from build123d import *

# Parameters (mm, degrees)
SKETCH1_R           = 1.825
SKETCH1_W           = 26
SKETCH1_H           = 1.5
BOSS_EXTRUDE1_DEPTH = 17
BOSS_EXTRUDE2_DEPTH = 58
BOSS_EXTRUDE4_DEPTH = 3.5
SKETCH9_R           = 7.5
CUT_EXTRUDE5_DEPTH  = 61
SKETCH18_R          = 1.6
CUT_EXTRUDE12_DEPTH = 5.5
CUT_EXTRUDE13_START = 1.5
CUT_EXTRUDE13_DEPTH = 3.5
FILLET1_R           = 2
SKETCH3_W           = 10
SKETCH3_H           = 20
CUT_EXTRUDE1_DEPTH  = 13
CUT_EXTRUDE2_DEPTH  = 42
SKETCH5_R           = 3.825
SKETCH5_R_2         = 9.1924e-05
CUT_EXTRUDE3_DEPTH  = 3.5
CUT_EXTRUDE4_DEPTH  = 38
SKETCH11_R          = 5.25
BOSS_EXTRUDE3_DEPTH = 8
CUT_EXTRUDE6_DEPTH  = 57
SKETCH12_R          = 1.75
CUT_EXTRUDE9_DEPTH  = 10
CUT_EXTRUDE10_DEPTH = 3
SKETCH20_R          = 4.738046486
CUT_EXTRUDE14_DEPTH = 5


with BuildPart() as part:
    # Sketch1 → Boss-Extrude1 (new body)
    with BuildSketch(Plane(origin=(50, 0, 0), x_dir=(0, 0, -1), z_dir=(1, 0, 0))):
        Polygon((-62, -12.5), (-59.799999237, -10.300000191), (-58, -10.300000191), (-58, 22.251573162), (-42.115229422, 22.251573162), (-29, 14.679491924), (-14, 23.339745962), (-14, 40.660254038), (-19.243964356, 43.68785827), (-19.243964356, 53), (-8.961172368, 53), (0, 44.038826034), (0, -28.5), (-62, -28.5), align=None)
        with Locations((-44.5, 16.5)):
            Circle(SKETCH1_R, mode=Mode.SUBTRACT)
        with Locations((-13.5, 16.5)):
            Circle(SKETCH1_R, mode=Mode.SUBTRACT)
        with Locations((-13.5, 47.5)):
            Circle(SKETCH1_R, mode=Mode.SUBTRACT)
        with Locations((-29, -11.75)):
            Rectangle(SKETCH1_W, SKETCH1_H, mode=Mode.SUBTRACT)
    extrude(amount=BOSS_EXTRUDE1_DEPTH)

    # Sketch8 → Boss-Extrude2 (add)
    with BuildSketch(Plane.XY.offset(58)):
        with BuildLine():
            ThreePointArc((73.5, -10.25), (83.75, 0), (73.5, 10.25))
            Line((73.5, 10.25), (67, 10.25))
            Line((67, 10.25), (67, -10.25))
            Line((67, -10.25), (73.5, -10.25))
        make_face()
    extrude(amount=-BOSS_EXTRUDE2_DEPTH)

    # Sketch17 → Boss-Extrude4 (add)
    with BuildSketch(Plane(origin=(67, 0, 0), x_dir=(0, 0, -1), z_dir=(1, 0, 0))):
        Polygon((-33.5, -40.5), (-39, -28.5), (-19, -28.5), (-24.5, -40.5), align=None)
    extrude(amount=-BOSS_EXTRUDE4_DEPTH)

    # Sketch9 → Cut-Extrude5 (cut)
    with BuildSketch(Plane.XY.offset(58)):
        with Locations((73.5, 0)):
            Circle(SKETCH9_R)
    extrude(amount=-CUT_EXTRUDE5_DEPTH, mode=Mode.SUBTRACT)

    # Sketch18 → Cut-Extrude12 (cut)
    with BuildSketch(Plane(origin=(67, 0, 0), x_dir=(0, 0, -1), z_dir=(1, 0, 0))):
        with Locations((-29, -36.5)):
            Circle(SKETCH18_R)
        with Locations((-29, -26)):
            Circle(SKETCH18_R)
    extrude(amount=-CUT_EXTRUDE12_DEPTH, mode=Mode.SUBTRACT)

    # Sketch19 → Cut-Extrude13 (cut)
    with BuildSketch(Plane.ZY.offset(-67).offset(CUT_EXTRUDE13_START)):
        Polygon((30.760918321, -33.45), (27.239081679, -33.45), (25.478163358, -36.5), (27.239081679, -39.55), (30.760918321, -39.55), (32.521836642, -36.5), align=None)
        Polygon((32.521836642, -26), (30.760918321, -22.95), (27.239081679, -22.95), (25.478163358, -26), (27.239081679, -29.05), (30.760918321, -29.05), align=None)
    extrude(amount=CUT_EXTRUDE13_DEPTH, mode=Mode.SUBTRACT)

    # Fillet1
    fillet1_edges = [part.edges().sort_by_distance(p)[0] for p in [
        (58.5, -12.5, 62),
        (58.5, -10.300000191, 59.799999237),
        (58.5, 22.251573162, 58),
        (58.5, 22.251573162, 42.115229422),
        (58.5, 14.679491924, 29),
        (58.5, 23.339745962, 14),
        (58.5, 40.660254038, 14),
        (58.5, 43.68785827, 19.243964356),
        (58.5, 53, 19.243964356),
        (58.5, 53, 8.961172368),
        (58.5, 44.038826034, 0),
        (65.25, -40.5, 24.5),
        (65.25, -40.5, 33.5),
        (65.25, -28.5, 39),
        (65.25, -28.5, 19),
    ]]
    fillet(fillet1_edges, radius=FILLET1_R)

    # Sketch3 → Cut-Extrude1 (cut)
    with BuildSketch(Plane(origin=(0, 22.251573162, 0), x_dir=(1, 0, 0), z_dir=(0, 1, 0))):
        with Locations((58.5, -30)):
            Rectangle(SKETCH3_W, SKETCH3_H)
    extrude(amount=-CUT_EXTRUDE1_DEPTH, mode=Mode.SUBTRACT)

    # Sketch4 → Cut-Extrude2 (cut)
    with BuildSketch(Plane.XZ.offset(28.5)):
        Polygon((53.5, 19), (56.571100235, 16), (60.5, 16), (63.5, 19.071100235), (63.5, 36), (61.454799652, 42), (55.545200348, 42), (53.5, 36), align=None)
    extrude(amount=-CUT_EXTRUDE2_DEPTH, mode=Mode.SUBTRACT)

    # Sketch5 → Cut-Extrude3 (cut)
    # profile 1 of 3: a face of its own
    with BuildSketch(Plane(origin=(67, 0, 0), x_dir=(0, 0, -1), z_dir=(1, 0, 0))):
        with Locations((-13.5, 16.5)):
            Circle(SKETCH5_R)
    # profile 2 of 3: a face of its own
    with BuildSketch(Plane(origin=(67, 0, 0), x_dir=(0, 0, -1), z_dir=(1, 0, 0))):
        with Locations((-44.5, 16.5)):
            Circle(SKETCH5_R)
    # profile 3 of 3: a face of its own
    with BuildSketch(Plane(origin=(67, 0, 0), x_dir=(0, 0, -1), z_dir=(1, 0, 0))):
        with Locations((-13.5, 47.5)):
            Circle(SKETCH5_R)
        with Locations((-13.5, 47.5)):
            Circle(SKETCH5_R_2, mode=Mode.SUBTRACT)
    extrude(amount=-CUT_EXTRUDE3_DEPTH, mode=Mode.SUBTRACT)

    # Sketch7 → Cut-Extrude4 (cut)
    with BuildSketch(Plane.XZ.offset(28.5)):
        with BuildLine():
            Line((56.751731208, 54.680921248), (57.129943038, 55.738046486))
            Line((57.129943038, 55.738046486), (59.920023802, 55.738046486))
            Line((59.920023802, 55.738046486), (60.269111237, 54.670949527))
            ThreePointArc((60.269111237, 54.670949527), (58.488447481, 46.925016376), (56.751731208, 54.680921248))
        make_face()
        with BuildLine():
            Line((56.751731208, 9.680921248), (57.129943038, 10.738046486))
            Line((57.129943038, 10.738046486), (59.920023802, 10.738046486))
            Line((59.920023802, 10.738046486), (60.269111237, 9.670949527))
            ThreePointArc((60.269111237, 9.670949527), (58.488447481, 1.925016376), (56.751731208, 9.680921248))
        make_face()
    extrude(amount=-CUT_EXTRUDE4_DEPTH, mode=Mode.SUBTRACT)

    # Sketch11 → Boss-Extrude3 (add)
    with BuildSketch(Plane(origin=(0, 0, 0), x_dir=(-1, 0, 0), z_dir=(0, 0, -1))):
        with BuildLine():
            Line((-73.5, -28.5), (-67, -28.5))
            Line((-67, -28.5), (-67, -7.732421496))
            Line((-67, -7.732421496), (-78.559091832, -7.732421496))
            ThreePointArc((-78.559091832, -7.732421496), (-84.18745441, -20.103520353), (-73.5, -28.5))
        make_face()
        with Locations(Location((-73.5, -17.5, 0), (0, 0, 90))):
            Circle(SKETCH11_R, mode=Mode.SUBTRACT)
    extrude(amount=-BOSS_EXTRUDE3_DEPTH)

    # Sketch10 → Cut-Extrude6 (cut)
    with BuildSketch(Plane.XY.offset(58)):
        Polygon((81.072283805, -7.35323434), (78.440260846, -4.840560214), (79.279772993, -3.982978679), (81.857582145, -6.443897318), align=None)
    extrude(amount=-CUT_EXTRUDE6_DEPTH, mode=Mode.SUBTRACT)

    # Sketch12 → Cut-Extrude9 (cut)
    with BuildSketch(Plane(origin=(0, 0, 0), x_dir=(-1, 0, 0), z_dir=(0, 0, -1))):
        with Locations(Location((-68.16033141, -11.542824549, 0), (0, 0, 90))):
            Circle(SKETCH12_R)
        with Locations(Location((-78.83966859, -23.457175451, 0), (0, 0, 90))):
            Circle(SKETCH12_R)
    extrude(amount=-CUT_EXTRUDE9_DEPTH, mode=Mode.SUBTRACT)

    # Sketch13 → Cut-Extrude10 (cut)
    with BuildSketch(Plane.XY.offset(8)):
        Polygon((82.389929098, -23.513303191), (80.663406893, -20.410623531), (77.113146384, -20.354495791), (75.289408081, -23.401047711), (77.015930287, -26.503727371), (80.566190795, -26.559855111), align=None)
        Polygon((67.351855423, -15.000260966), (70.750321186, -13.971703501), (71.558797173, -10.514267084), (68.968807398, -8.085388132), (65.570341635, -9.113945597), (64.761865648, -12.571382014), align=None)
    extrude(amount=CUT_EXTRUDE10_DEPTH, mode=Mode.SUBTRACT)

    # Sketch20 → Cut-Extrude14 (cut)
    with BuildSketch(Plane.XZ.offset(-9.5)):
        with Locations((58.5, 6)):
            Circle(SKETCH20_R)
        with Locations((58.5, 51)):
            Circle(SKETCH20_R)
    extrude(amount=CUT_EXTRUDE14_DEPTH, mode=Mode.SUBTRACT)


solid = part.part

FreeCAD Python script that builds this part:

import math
import FreeCAD as App
import Part
import Sketcher
from FreeCAD import Vector
Q = App.Units.Quantity


def edges_at(feature, points):
    """Names of the edges that pass closest to the given points."""
    edges = feature.Shape.Edges
    near = lambda p: min(range(len(edges)), key=lambda i: edges[i].distToShape(Part.Vertex(*p))[0])
    return sorted({f"Edge{near(p) + 1}" for p in points})


def add_polygon(sketch, points):
    """Adds a closed chain of lines whose ends are joined by coincident constraints."""
    first, n = sketch.GeometryCount, len(points)
    for a, b in zip(points, points[1:] + points[:1]):
        sketch.addGeometry(Part.LineSegment(App.Vector(*a, 0), App.Vector(*b, 0)), False)
    for i in range(n):
        sketch.addConstraint(Sketcher.Constraint("Coincident", first + i, 2, first + (i + 1) % n, 1))

doc = App.newDocument("Part")
body = doc.addObject("PartDesign::Body", "Body")

# Sketch on YZ plane
sketch1 = body.newObject("Sketcher::SketchObject", "Sketch")
sketch1.AttachmentSupport = (doc.getObject("YZ_Plane"), [""])
sketch1.MapMode = "FlatFace"
sketch1.AttachmentOffset = App.Placement(Vector(0, 0, 50), App.Rotation())
add_polygon(sketch1, [(-10.3, 59.8), (-12.5, 62), (-28.5, 62), (-28.5, 0), (44, 0), (53, 9), (53, 19.2), (43.7, 19.2), (40.7, 14), (23.3, 14), (14.7, 29), (22.3, 42.1), (22.3, 58), (-10.3, 58)])  # lines 0-13
add_polygon(sketch1, [(-12.5, 42), (-11, 42), (-11, 16), (-12.5, 16)])  # lines 14-17
sketch1.addGeometry(Part.Circle(Vector(16.5, 13.5, 0), Vector(0, 0, 1), 1.8), False)  # 18
sketch1.addGeometry(Part.Circle(Vector(16.5, 44.5, 0), Vector(0, 0, 1), 1.8), False)  # 19
sketch1.addGeometry(Part.Circle(Vector(47.5, 13.5, 0), Vector(0, 0, 1), 1.8), False)  # 20
sketch1.addConstraint([
    Sketcher.Constraint("Horizontal", 1),
    Sketcher.Constraint("Vertical", 2),
    Sketcher.Constraint("Horizontal", 3),
    Sketcher.Constraint("Vertical", 5),
    Sketcher.Constraint("Horizontal", 6),
    Sketcher.Constraint("Horizontal", 8),
    Sketcher.Constraint("Vertical", 11),
    Sketcher.Constraint("Horizontal", 12),
    Sketcher.Constraint("Vertical", 13),
    Sketcher.Constraint("Horizontal", 14),
    Sketcher.Constraint("Vertical", 15),
    Sketcher.Constraint("Horizontal", 16),
    Sketcher.Constraint("Vertical", 17),
    Sketcher.Constraint("Equal", 18, 19),
    Sketcher.Constraint("Equal", 19, 20),
    Sketcher.Constraint("PointOnObject", 2, 2, -1),
    Sketcher.Constraint("Perpendicular", 0, 4),
    Sketcher.Constraint("Parallel", 7, 10),
    Sketcher.Constraint("Horizontal", 18, 3, 20, 3),
    Sketcher.Constraint("Vertical", 18, 3, 19, 3),
    Sketcher.Constraint("Vertical", 0, 2, 16, 2),
    Sketcher.Constraint("Diameter", 18, 3.65),
    Sketcher.Constraint("DistanceX", 1, 2, 1, 1, 16.0),
    Sketcher.Constraint("DistanceY", 2, 2, 2, 1, 62.0),
    Sketcher.Constraint("DistanceY", 15, 2, 15, 1, 26.0),
    Sketcher.Constraint("Angle", 0, Q("134.999988 deg")),
    Sketcher.Constraint("Angle", 7, Q("-120 deg")),
    Sketcher.Constraint("Angle", 9, Q("120 deg")),
    Sketcher.Constraint("DistanceX", 14, 1, 14, 2, 1.5),
    Sketcher.Constraint("DistanceY", 13, 1, 13, 2, 1.799999),
    Sketcher.Constraint("DistanceX", -1, 1, 4, 2, 53.0),
    Sketcher.Constraint("DistanceY", -1, 1, 7, 2, 14.0),
    Sketcher.Constraint("DistanceY", -1, 1, 9, 2, 29.0),
    Sketcher.Constraint("DistanceY", -1, 1, 11, 2, 58.0),
    Sketcher.Constraint("DistanceX", 14, 2, -1, 1, 11.0),
    Sketcher.Constraint("DistanceY", -1, 1, 14, 2, 42.0),
    Sketcher.Constraint("DistanceY", 18, 3, 19, 3, 31.0),
    Sketcher.Constraint("DistanceX", 18, 3, 20, 3, 31.0),
    Sketcher.Constraint("DistanceX", 0, 2, 19, 3, 29.0),
    Sketcher.Constraint("DistanceY", -1, 1, 18, 3, 13.5),
    Sketcher.Constraint("DistanceX", 6, 2, 6, 1, 9.312142),
    Sketcher.Constraint("DistanceX", 8, 2, 8, 1, 17.320508),
    Sketcher.Constraint("DistanceY", 5, 1, 5, 2, 10.282792),
    Sketcher.Constraint("DistanceY", 11, 1, 11, 2, 15.884771),
    Sketcher.Constraint("Distance", 7, 6.055208),
])
pad1 = body.newObject("PartDesign::Pad", "Pad")
pad1.Profile = sketch1
pad1.Length = 17

# Sketch on XY plane
sketch2 = body.newObject("Sketcher::SketchObject", "Sketch001")
sketch2.AttachmentSupport = (doc.getObject("XY_Plane"), [""])
sketch2.MapMode = "FlatFace"
sketch2.AttachmentOffset = App.Placement(Vector(0, 0, 58), App.Rotation())
sketch2.addGeometry([
    Part.ArcOfCircle(Part.Circle(Vector(74, 0, 0), Vector(0, 0, 1), 10), math.radians(-90), math.radians(90)),
    Part.LineSegment(Vector(74, 10, 0), Vector(67, 10, 0)),
    Part.LineSegment(Vector(67, 10, 0), Vector(67, -10, 0)),
    Part.LineSegment(Vector(67, -10, 0), Vector(74, -10, 0)),
], False)
sketch2.addConstraint([
    Sketcher.Constraint("Tangent", 0, 2, 1, 1),
    Sketcher.Constraint("Coincident", 1, 2, 2, 1),
    Sketcher.Constraint("Coincident", 2, 2, 3, 1),
    Sketcher.Constraint("Tangent", 3, 2, 0, 1),
    Sketcher.Constraint("Horizontal", 1),
    Sketcher.Constraint("Vertical", 2),
    Sketcher.Constraint("Horizontal", 3),
    Sketcher.Constraint("PointOnObject", 0, 3, -1),
    Sketcher.Constraint("Radius", 0, 10.25),
    Sketcher.Constraint("DistanceX", 1, 2, 1, 1, 6.5),
    Sketcher.Constraint("DistanceX", -1, 1, 1, 2, 67.0),
])
pad2 = body.newObject("PartDesign::Pad", "Pad001")
pad2.Profile = sketch2
pad2.Length = 58
pad2.Reversed = True

# Sketch on YZ plane
sketch3 = body.newObject("Sketcher::SketchObject", "Sketch002")
sketch3.AttachmentSupport = (doc.getObject("YZ_Plane"), [""])
sketch3.MapMode = "FlatFace"
sketch3.AttachmentOffset = App.Placement(Vector(0, 0, 67), App.Rotation())
add_polygon(sketch3, [(-28, 39), (-40, 34), (-40, 24), (-28, 19)])  # lines 0-3
sketch3.addConstraint([
    Sketcher.Constraint("Vertical", 1),
    Sketcher.Constraint("Vertical", 3),
    Sketcher.Constraint("Equal", 0, 2),
    Sketcher.Constraint("DistanceY", 1, 2, 1, 1, 9.0),
    Sketcher.Constraint("DistanceY", 3, 1, 3, 2, 20.0),
    Sketcher.Constraint("DistanceY", -1, 1, 2, 2, 19.0),
    Sketcher.Constraint("DistanceX", 1, 2, 2, 2, 12.0),
    Sketcher.Constraint("DistanceX", 0, 2, -1, 1, 40.5),
])
pad3 = body.newObject("PartDesign::Pad", "Pad002")
pad3.Profile = sketch3
pad3.Length = 3.5
pad3.Reversed = True

# Sketch on XY plane
sketch4 = body.newObject("Sketcher::SketchObject", "Sketch003")
sketch4.AttachmentSupport = (doc.getObject("XY_Plane"), [""])
sketch4.MapMode = "FlatFace"
sketch4.AttachmentOffset = App.Placement(Vector(0, 0, 58), App.Rotation())
sketch4.addGeometry(Part.Circle(Vector(74, 0, 0), Vector(0, 0, 1), 8), False)
sketch4.addConstraint([
    Sketcher.Constraint("PointOnObject", 0, 3, -1),
    Sketcher.Constraint("Diameter", 0, 15.0),
    Sketcher.Constraint("DistanceX", -1, 1, 0, 3, 73.5),
])
pocket1 = body.newObject("PartDesign::Pocket", "Pocket")
pocket1.Profile = sketch4
pocket1.Length = 61

# Sketch on YZ plane
sketch5 = body.newObject("Sketcher::SketchObject", "Sketch004")
sketch5.AttachmentSupport = (doc.getObject("YZ_Plane"), [""])
sketch5.MapMode = "FlatFace"
sketch5.AttachmentOffset = App.Placement(Vector(0, 0, 67), App.Rotation())
sketch5.addGeometry([
    Part.Circle(Vector(-36.5, 29, 0), Vector(0, 0, 1), 1.6),
    Part.Circle(Vector(-26, 29, 0), Vector(0, 0, 1), 1.6),
], False)
sketch5.addConstraint([
    Sketcher.Constraint("Equal", 0, 1),
    Sketcher.Constraint("Horizontal", 0, 3, 1, 3),
    Sketcher.Constraint("Diameter", 0, 3.2),
    Sketcher.Constraint("DistanceY", -1, 1, 0, 3, 29.0),
    Sketcher.Constraint("DistanceX", 1, 3, -1, 1, 26.0),
    Sketcher.Constraint("DistanceX", 0, 3, -1, 1, 36.5),
])
pocket2 = body.newObject("PartDesign::Pocket", "Pocket001")
pocket2.Profile = sketch5
pocket2.Length = 5.5

# Sketch on YZ plane
sketch6 = body.newObject("Sketcher::SketchObject", "Sketch005")
sketch6.AttachmentSupport = (doc.getObject("YZ_Plane"), [""])
sketch6.MapMode = "FlatFace"
sketch6.AttachmentOffset = App.Placement(Vector(0, 0, 65.5), App.Rotation())
add_polygon(sketch6, [(-33.5, 30.8), (-33.5, 27.2), (-36.5, 25.5), (-39.5, 27.2), (-39.5, 30.8), (-36.5, 32.5)])  # lines 0-5
add_polygon(sketch6, [(-26, 32.5), (-22.9, 30.8), (-22.9, 27.2), (-26, 25.5), (-29.1, 27.2), (-29.1, 30.8)])  # lines 6-11
sketch6.addConstraint([
    Sketcher.Constraint("Vertical", 0),
    Sketcher.Constraint("Vertical", 3),
    Sketcher.Constraint("Vertical", 7),
    Sketcher.Constraint("Vertical", 10),
    Sketcher.Constraint("Parallel", 1, 4),
    Sketcher.Constraint("Parallel", 2, 5),
    Sketcher.Constraint("Parallel", 5, 6),
    Sketcher.Constraint("Parallel", 4, 8),
    Sketcher.Constraint("Parallel", 6, 9),
    Sketcher.Constraint("Parallel", 8, 11),
    Sketcher.Constraint("Horizontal", 0, 2, 2, 2),
    Sketcher.Constraint("Horizontal", 3, 2, 5, 2),
    Sketcher.Constraint("Horizontal", 5, 2, 6, 2),
    Sketcher.Constraint("Horizontal", 2, 2, 7, 2),
    Sketcher.Constraint("Horizontal", 1, 2, 8, 2),
    Sketcher.Constraint("Horizontal", 7, 2, 9, 2),
    Sketcher.Constraint("Horizontal", 6, 2, 10, 2),
    Sketcher.Constraint("Vertical", 1, 2, 4, 2),
    Sketcher.Constraint("Angle", 1, Q("-150 deg")),
    Sketcher.Constraint("DistanceX", 8, 2, -1, 1, 26.0),
    Sketcher.Constraint("DistanceX", 1, 2, -1, 1, 36.5),
    Sketcher.Constraint("DistanceX", 2, 2, 0, 2, 6.1),
    Sketcher.Constraint("DistanceY", 0, 2, 0, 1, 3.521837),
    Sketcher.Constraint("DistanceY", -1, 1, 0, 2, 27.239082),
])
pocket3 = body.newObject("PartDesign::Pocket", "Pocket002")
pocket3.Profile = sketch6
pocket3.Length = 3.5
doc.recompute()

fillet = body.newObject("PartDesign::Fillet", "Fillet")
fillet.Base = (pocket3, edges_at(pocket3, [
    (58.5, -12.5, 62),
    (58.5, -10.3, 59.8),
    (58.5, 22.252, 58),
    (58.5, 22.252, 42.115),
    (58.5, 14.679, 29),
    (58.5, 23.34, 14),
    (58.5, 40.66, 14),
    (58.5, 43.688, 19.244),
    (58.5, 53, 19.244),
    (58.5, 53, 8.961),
    (58.5, 44.039, 0),
    (65.25, -40.5, 24.5),
    (65.25, -40.5, 33.5),
    (65.25, -28.5, 39),
    (65.25, -28.5, 19),
]))
fillet.Radius = 2

# Sketch on XZ plane
sketch7 = body.newObject("Sketcher::SketchObject", "Sketch006")
sketch7.AttachmentSupport = (doc.getObject("XZ_Plane"), [""])
sketch7.MapMode = "FlatFace"
sketch7.AttachmentOffset = App.Placement(Vector(0, 0, -22.251573), App.Rotation())
add_polygon(sketch7, [(54, 20), (54, 40), (64, 40), (64, 20)])  # lines 0-3
sketch7.addConstraint([
    Sketcher.Constraint("Vertical", 0),
    Sketcher.Constraint("Horizontal", 1),
    Sketcher.Constraint("Vertical", 2),
    Sketcher.Constraint("Horizontal", 3),
    Sketcher.Constraint("DistanceX", 1, 1, 1, 2, 10.0),
    Sketcher.Constraint("DistanceY", 0, 1, 0, 2, 20.0),
    Sketcher.Constraint("DistanceY", -1, 1, 0, 2, 40.0),
    Sketcher.Constraint("DistanceX", -1, 1, 0, 2, 53.5),
])
pocket4 = body.newObject("PartDesign::Pocket", "Pocket003")
pocket4.Profile = sketch7
pocket4.Length = 13
pocket4.Reversed = True

# Sketch on XZ plane
sketch8 = body.newObject("Sketcher::SketchObject", "Sketch007")
sketch8.AttachmentSupport = (doc.getObject("XZ_Plane"), [""])
sketch8.MapMode = "FlatFace"
sketch8.AttachmentOffset = App.Placement(Vector(0, 0, 28.5), App.Rotation())
add_polygon(sketch8, [(53.5, 19), (56.6, 16), (60.5, 16), (63.5, 19.1), (63.5, 36), (61.5, 42), (55.5, 42), (53.5, 36)])  # lines 0-7
sketch8.addConstraint([
    Sketcher.Constraint("Horizontal", 1),
    Sketcher.Constraint("Vertical", 3),
    Sketcher.Constraint("Horizontal", 5),
    Sketcher.Constraint("Vertical", 7),
    Sketcher.Constraint("Perpendicular", 0, 2),
    Sketcher.Constraint("Horizontal", 3, 2, 6, 2),
    Sketcher.Constraint("Equal", 0, 2),
    Sketcher.Constraint("Equal", 4, 6),
    Sketcher.Constraint("DistanceY", 7, 2, 7, 1, 17.0),
    Sketcher.Constraint("DistanceY", -1, 1, 0, 2, 16.0),
    Sketcher.Constraint("DistanceY", -1, 1, 3, 2, 36.0),
    Sketcher.Constraint("DistanceY", -1, 1, 4, 2, 42.0),
    Sketcher.Constraint("DistanceX", 6, 2, 3, 2, 10.0),
    Sketcher.Constraint("DistanceX", -1, 1, 1, 2, 60.5),
    Sketcher.Constraint("DistanceX", 1, 1, 1, 2, 3.9289),
    Sketcher.Constraint("DistanceX", 5, 2, 5, 1, 5.909599),
])
pocket5 = body.newObject("PartDesign::Pocket", "Pocket004")
pocket5.Profile = sketch8
pocket5.Length = 42

# Sketch on YZ plane
sketch9 = body.newObject("Sketcher::SketchObject", "Sketch008")
sketch9.AttachmentSupport = (doc.getObject("YZ_Plane"), [""])
sketch9.MapMode = "FlatFace"
sketch9.AttachmentOffset = App.Placement(Vector(0, 0, 67), App.Rotation())
sketch9.addGeometry([
    Part.Circle(Vector(16.5, 13.5, 0), Vector(0, 0, 1), 3.825),
    Part.Circle(Vector(16.5, 44.5, 0), Vector(0, 0, 1), 3.825),
    Part.Circle(Vector(47.5, 13.5, 0), Vector(0, 0, 1), 3.825),
    Part.Circle(Vector(47.5, 13.5, 0), Vector(0, 0, 1), 0.00009),
], False)
sketch9.addConstraint([
    Sketcher.Constraint("Coincident", 3, 3, 2, 3),
    Sketcher.Constraint("Equal", 0, 1),
    Sketcher.Constraint("Equal", 1, 2),
    Sketcher.Constraint("Horizontal", 0, 3, 2, 3),
    Sketcher.Constraint("Vertical", 0, 3, 1, 3),
    Sketcher.Constraint("Diameter", 0, 7.65),
    Sketcher.Constraint("DistanceY", 0, 3, 1, 3, 31.0),
    Sketcher.Constraint("DistanceX", 0, 3, 2, 3, 31.0),
    Sketcher.Constraint("DistanceX", -1, 1, 0, 3, 16.5),
    Sketcher.Constraint("DistanceY", -1, 1, 0, 3, 13.5),
    Sketcher.Constraint("Diameter", 3, 0.000184),
])
pocket6 = body.newObject("PartDesign::Pocket", "Pocket005")
pocket6.Profile = sketch9
pocket6.Length = 3.5

# Sketch on XZ plane
sketch10 = body.newObject("Sketcher::SketchObject", "Sketch009")
sketch10.AttachmentSupport = (doc.getObject("XZ_Plane"), [""])
sketch10.MapMode = "FlatFace"
sketch10.AttachmentOffset = App.Placement(Vector(0, 0, 28.5), App.Rotation())
sketch10.addGeometry([
    Part.LineSegment(Vector(57.129943, 55.738046, 0), Vector(56.751731, 54.680921, 0)),  # 0
    Part.ArcOfCircle(Part.Circle(Vector(58.5, 51, 0), Vector(0, 0, 1), 4.075), math.radians(115.405574), math.radians(424.269561)),  # 1
    Part.LineSegment(Vector(60.269111, 54.67095, 0), Vector(59.920024, 55.738046, 0)),  # 2
    Part.LineSegment(Vector(59.920024, 55.738046, 0), Vector(57.129943, 55.738046, 0)),  # 3
    Part.LineSegment(Vector(57.129943, 10.738046, 0), Vector(56.751731, 9.680921, 0)),  # 4
    Part.ArcOfCircle(Part.Circle(Vector(58.5, 6, 0), Vector(0, 0, 1), 4.075), math.radians(115.405574), math.radians(424.269561)),  # 5
    Part.LineSegment(Vector(60.269111, 9.67095, 0), Vector(59.920024, 10.738046, 0)),  # 6
    Part.LineSegment(Vector(59.920024, 10.738046, 0), Vector(57.129943, 10.738046, 0)),  # 7
], False)
sketch10.addConstraint([
    Sketcher.Constraint("Coincident", 0, 2, 1, 1),
    Sketcher.Constraint("Coincident", 1, 2, 2, 1),
    Sketcher.Constraint("Coincident", 2, 2, 3, 1),
    Sketcher.Constraint("Coincident", 3, 2, 0, 1),
    Sketcher.Constraint("Coincident", 4, 2, 5, 1),
    Sketcher.Constraint("Coincident", 5, 2, 6, 1),
    Sketcher.Constraint("Coincident", 6, 2, 7, 1),
    Sketcher.Constraint("Coincident", 7, 2, 4, 1),
    Sketcher.Constraint("Horizontal", 3),
    Sketcher.Constraint("Horizontal", 7),
    Sketcher.Constraint("DistanceY", -1, 1, 1, 3, 51.0),
    Sketcher.Constraint("DistanceY", -1, 1, 5, 3, 6.0),
    Sketcher.Constraint("Radius", 1, 4.075),
    Sketcher.Constraint("Radius", 5, 4.075),
    Sketcher.Constraint("DistanceY", 4, 2, 0, 2, 45.0),
    Sketcher.Constraint("DistanceY", 5, 2, 1, 2, 45.0),
    Sketcher.Constraint("DistanceX", -1, 1, 1, 3, 58.5),
    Sketcher.Constraint("DistanceX", -1, 1, 5, 3, 58.5),
    Sketcher.Constraint("DistanceX", 3, 2, 3, 1, 2.790081),
    Sketcher.Constraint("DistanceX", 7, 2, 7, 1, 2.790081),
    Sketcher.Constraint("DistanceX", -1, 1, 0, 2, 56.751731),
    Sketcher.Constraint("DistanceX", -1, 1, 1, 2, 60.269111),
    Sketcher.Constraint("DistanceX", 0, 2, 3, 2, 0.378212),
    Sketcher.Constraint("DistanceX", 4, 2, 7, 2, 0.378212),
    Sketcher.Constraint("Distance", 0, 1.122746),
    Sketcher.Constraint("Distance", 4, 1.122746),
])
pocket7 = body.newObject("PartDesign::Pocket", "Pocket006")
pocket7.Profile = sketch10
pocket7.Length = 38

# Sketch on XY plane
sketch11 = body.newObject("Sketcher::SketchObject", "Sketch010")
sketch11.AttachmentSupport = (doc.getObject("XY_Plane"), [""])
sketch11.MapMode = "FlatFace"
sketch11.addGeometry([
    Part.LineSegment(Vector(74, -28, 0), Vector(67, -28, 0)),  # 0
    Part.LineSegment(Vector(67, -28, 0), Vector(67, -8, 0)),  # 1
    Part.LineSegment(Vector(67, -8, 0), Vector(79, -8, 0)),  # 2
    Part.ArcOfCircle(Part.Circle(Vector(74, -18, 0), Vector(0, 0, 1), 11), math.radians(-90), math.radians(63)),  # 3
    Part.Circle(Vector(74, -18, 0), Vector(0, 0, 1), 5),  # 4
], False)
sketch11.addConstraint([
    Sketcher.Constraint("Coincident", 0, 2, 1, 1),
    Sketcher.Constraint("Coincident", 1, 2, 2, 1),
    Sketcher.Constraint("Coincident", 2, 2, 3, 2),
    Sketcher.Constraint("Tangent", 3, 1, 0, 1),
    Sketcher.Constraint("Horizontal", 0),
    Sketcher.Constraint("Vertical", 1),
    Sketcher.Constraint("Horizontal", 2),
    Sketcher.Constraint("Coincident", 4, 3, 3, 3),
    Sketcher.Constraint("Radius", 3, 11.0),
    Sketcher.Constraint("Diameter", 4, 10.5),
    Sketcher.Constraint("DistanceX", 0, 2, 0, 1, 6.5),
    Sketcher.Constraint("DistanceX", -1, 1, 0, 2, 67.0),
    Sketcher.Constraint("DistanceY", 3, 3, -1, 1, 17.5),
    Sketcher.Constraint("DistanceX", 2, 1, 2, 2, 11.559092),
])
pad4 = body.newObject("PartDesign::Pad", "Pad003")
pad4.Profile = sketch11
pad4.Length = 8

# Sketch on XY plane
sketch12 = body.newObject("Sketcher::SketchObject", "Sketch011")
sketch12.AttachmentSupport = (doc.getObject("XY_Plane"), [""])
sketch12.MapMode = "FlatFace"
sketch12.AttachmentOffset = App.Placement(Vector(0, 0, 58), App.Rotation())
add_polygon(sketch12, [(78.4, -4.8), (81.1, -7.4), (81.9, -6.4), (79.3, -4)])  # lines 0-3
sketch12.addConstraint([
    Sketcher.Constraint("Parallel", 0, 2),
    Sketcher.Constraint("Angle", 3, Q("-134.38998 deg")),
    Sketcher.Constraint("DistanceX", 0, 2, 1, 2, 0.785298),
    Sketcher.Constraint("Distance", 0, 3.638829),
    Sketcher.Constraint("DistanceY", 2, 2, -1, 1, 3.982979),
    Sketcher.Constraint("DistanceX", -1, 1, 3, 2, 78.440261),
    Sketcher.Constraint("DistanceY", 3, 2, -1, 1, 4.84056),
    Sketcher.Constraint("DistanceX", 2, 2, 1, 2, 2.577809),
])
pocket8 = body.newObject("PartDesign::Pocket", "Pocket007")
pocket8.Profile = sketch12
pocket8.Length = 57

# Sketch on XY plane
sketch13 = body.newObject("Sketcher::SketchObject", "Sketch012")
sketch13.AttachmentSupport = (doc.getObject("XY_Plane"), [""])
sketch13.MapMode = "FlatFace"
sketch13.addGeometry([
    Part.Circle(Vector(68.2, -11.5, 0), Vector(0, 0, 1), 1.8),
    Part.Circle(Vector(78.8, -23.5, 0), Vector(0, 0, 1), 1.8),
], False)
sketch13.addConstraint([
    Sketcher.Constraint("Equal", 0, 1),
    Sketcher.Constraint("Diameter", 0, 3.5),
    Sketcher.Constraint("DistanceX", -1, 1, 0, 3, 68.160331),
    Sketcher.Constraint("DistanceX", -1, 1, 1, 3, 78.839669),
    Sketcher.Constraint("DistanceY", 1, 3, 0, 3, 11.914351),
    Sketcher.Constraint("DistanceY", 0, 3, -1, 1, 11.542825),
])
pocket9 = body.newObject("PartDesign::Pocket", "Pocket008")
pocket9.Profile = sketch13
pocket9.Length = 10
pocket9.Reversed = True

# Sketch on XY plane
sketch14 = body.newObject("Sketcher::SketchObject", "Sketch013")
sketch14.AttachmentSupport = (doc.getObject("XY_Plane"), [""])
sketch14.MapMode = "FlatFace"
sketch14.AttachmentOffset = App.Placement(Vector(0, 0, 8), App.Rotation())
add_polygon(sketch14, [(82.389929, -23.513303), (80.663407, -20.410624), (77.113146, -20.354496), (75.289408, -23.401048), (77.01593, -26.503727), (80.566191, -26.559855)])  # lines 0-5
add_polygon(sketch14, [(67.351855, -15.000261), (70.750321, -13.971704), (71.558797, -10.514267), (68.968807, -8.085388), (65.570342, -9.113946), (64.761866, -12.571382)])  # lines 6-11
sketch14.addConstraint([
    Sketcher.Constraint("DistanceX", 2, 2, 0, 2, 5.373999),
    Sketcher.Constraint("DistanceX", 3, 2, 5, 2, 5.373999),
    Sketcher.Constraint("DistanceY", 5, 2, 6, 2, 9.5416),
    Sketcher.Constraint("DistanceX", 8, 2, 2, 2, 6.320601),
    Sketcher.Constraint("DistanceX", -1, 1, 2, 2, 75.289408),
    Sketcher.Constraint("DistanceX", -1, 1, 3, 2, 77.01593),
    Sketcher.Constraint("DistanceX", -1, 1, 4, 2, 80.566191),
    Sketcher.Constraint("DistanceX", -1, 1, 6, 2, 70.750321),
    Sketcher.Constraint("DistanceY", 8, 2, -1, 1, 8.085388),
    Sketcher.Constraint("DistanceX", -1, 1, 9, 2, 65.570342),
    Sketcher.Constraint("DistanceY", 11, 2, -1, 1, 15.000261),
    Sketcher.Constraint("DistanceX", 1, 2, 0, 2, 3.550261),
    Sketcher.Constraint("DistanceY", 2, 2, 1, 2, 3.046552),
    Sketcher.Constraint("DistanceY", 3, 2, 2, 2, 3.10268),
    Sketcher.Constraint("DistanceY", 4, 2, 0, 2, 6.149232),
    Sketcher.Constraint("DistanceY", 4, 2, 1, 2, 6.205359),
    Sketcher.Constraint("DistanceY", 5, 2, 0, 2, 3.10268),
    Sketcher.Constraint("DistanceX", 7, 2, 1, 2, 5.554349),
    Sketcher.Constraint("DistanceY", 1, 2, 7, 2, 9.840229),
    Sketcher.Constraint("DistanceY", 7, 2, 8, 2, 2.428879),
    Sketcher.Constraint("DistanceY", 7, 2, 9, 2, 1.400321),
    Sketcher.Constraint("DistanceX", 10, 2, 8, 2, 4.206942),
    Sketcher.Constraint("DistanceY", 6, 2, 10, 2, 1.400321),
    Sketcher.Constraint("DistanceX", 10, 2, 11, 2, 2.58999),
])
pocket10 = body.newObject("PartDesign::Pocket", "Pocket009")
pocket10.Profile = sketch14
pocket10.Length = 3
pocket10.Reversed = True

# Sketch on XZ plane
sketch15 = body.newObject("Sketcher::SketchObject", "Sketch014")
sketch15.AttachmentSupport = (doc.getObject("XZ_Plane"), [""])
sketch15.MapMode = "FlatFace"
sketch15.AttachmentOffset = App.Placement(Vector(0, 0, -9.5), App.Rotation())
sketch15.addGeometry([
    Part.Circle(Vector(58.5, 6, 0), Vector(0, 0, 1), 4.7),
    Part.Circle(Vector(58.5, 51, 0), Vector(0, 0, 1), 4.7),
], False)
sketch15.addConstraint([
    Sketcher.Constraint("Equal", 0, 1),
    Sketcher.Constraint("Vertical", 0, 3, 1, 3),
    Sketcher.Constraint("DistanceY", -1, 1, 0, 3, 6.0),
    Sketcher.Constraint("DistanceY", -1, 1, 1, 3, 51.0),
    Sketcher.Constraint("DistanceX", -1, 1, 0, 3, 58.5),
    Sketcher.Constraint("Diameter", 0, 9.476093),
])
pocket11 = body.newObject("PartDesign::Pocket", "Pocket010")
pocket11.Profile = sketch15
pocket11.Length = 5
pocket11.Reversed = True

doc.recompute()
